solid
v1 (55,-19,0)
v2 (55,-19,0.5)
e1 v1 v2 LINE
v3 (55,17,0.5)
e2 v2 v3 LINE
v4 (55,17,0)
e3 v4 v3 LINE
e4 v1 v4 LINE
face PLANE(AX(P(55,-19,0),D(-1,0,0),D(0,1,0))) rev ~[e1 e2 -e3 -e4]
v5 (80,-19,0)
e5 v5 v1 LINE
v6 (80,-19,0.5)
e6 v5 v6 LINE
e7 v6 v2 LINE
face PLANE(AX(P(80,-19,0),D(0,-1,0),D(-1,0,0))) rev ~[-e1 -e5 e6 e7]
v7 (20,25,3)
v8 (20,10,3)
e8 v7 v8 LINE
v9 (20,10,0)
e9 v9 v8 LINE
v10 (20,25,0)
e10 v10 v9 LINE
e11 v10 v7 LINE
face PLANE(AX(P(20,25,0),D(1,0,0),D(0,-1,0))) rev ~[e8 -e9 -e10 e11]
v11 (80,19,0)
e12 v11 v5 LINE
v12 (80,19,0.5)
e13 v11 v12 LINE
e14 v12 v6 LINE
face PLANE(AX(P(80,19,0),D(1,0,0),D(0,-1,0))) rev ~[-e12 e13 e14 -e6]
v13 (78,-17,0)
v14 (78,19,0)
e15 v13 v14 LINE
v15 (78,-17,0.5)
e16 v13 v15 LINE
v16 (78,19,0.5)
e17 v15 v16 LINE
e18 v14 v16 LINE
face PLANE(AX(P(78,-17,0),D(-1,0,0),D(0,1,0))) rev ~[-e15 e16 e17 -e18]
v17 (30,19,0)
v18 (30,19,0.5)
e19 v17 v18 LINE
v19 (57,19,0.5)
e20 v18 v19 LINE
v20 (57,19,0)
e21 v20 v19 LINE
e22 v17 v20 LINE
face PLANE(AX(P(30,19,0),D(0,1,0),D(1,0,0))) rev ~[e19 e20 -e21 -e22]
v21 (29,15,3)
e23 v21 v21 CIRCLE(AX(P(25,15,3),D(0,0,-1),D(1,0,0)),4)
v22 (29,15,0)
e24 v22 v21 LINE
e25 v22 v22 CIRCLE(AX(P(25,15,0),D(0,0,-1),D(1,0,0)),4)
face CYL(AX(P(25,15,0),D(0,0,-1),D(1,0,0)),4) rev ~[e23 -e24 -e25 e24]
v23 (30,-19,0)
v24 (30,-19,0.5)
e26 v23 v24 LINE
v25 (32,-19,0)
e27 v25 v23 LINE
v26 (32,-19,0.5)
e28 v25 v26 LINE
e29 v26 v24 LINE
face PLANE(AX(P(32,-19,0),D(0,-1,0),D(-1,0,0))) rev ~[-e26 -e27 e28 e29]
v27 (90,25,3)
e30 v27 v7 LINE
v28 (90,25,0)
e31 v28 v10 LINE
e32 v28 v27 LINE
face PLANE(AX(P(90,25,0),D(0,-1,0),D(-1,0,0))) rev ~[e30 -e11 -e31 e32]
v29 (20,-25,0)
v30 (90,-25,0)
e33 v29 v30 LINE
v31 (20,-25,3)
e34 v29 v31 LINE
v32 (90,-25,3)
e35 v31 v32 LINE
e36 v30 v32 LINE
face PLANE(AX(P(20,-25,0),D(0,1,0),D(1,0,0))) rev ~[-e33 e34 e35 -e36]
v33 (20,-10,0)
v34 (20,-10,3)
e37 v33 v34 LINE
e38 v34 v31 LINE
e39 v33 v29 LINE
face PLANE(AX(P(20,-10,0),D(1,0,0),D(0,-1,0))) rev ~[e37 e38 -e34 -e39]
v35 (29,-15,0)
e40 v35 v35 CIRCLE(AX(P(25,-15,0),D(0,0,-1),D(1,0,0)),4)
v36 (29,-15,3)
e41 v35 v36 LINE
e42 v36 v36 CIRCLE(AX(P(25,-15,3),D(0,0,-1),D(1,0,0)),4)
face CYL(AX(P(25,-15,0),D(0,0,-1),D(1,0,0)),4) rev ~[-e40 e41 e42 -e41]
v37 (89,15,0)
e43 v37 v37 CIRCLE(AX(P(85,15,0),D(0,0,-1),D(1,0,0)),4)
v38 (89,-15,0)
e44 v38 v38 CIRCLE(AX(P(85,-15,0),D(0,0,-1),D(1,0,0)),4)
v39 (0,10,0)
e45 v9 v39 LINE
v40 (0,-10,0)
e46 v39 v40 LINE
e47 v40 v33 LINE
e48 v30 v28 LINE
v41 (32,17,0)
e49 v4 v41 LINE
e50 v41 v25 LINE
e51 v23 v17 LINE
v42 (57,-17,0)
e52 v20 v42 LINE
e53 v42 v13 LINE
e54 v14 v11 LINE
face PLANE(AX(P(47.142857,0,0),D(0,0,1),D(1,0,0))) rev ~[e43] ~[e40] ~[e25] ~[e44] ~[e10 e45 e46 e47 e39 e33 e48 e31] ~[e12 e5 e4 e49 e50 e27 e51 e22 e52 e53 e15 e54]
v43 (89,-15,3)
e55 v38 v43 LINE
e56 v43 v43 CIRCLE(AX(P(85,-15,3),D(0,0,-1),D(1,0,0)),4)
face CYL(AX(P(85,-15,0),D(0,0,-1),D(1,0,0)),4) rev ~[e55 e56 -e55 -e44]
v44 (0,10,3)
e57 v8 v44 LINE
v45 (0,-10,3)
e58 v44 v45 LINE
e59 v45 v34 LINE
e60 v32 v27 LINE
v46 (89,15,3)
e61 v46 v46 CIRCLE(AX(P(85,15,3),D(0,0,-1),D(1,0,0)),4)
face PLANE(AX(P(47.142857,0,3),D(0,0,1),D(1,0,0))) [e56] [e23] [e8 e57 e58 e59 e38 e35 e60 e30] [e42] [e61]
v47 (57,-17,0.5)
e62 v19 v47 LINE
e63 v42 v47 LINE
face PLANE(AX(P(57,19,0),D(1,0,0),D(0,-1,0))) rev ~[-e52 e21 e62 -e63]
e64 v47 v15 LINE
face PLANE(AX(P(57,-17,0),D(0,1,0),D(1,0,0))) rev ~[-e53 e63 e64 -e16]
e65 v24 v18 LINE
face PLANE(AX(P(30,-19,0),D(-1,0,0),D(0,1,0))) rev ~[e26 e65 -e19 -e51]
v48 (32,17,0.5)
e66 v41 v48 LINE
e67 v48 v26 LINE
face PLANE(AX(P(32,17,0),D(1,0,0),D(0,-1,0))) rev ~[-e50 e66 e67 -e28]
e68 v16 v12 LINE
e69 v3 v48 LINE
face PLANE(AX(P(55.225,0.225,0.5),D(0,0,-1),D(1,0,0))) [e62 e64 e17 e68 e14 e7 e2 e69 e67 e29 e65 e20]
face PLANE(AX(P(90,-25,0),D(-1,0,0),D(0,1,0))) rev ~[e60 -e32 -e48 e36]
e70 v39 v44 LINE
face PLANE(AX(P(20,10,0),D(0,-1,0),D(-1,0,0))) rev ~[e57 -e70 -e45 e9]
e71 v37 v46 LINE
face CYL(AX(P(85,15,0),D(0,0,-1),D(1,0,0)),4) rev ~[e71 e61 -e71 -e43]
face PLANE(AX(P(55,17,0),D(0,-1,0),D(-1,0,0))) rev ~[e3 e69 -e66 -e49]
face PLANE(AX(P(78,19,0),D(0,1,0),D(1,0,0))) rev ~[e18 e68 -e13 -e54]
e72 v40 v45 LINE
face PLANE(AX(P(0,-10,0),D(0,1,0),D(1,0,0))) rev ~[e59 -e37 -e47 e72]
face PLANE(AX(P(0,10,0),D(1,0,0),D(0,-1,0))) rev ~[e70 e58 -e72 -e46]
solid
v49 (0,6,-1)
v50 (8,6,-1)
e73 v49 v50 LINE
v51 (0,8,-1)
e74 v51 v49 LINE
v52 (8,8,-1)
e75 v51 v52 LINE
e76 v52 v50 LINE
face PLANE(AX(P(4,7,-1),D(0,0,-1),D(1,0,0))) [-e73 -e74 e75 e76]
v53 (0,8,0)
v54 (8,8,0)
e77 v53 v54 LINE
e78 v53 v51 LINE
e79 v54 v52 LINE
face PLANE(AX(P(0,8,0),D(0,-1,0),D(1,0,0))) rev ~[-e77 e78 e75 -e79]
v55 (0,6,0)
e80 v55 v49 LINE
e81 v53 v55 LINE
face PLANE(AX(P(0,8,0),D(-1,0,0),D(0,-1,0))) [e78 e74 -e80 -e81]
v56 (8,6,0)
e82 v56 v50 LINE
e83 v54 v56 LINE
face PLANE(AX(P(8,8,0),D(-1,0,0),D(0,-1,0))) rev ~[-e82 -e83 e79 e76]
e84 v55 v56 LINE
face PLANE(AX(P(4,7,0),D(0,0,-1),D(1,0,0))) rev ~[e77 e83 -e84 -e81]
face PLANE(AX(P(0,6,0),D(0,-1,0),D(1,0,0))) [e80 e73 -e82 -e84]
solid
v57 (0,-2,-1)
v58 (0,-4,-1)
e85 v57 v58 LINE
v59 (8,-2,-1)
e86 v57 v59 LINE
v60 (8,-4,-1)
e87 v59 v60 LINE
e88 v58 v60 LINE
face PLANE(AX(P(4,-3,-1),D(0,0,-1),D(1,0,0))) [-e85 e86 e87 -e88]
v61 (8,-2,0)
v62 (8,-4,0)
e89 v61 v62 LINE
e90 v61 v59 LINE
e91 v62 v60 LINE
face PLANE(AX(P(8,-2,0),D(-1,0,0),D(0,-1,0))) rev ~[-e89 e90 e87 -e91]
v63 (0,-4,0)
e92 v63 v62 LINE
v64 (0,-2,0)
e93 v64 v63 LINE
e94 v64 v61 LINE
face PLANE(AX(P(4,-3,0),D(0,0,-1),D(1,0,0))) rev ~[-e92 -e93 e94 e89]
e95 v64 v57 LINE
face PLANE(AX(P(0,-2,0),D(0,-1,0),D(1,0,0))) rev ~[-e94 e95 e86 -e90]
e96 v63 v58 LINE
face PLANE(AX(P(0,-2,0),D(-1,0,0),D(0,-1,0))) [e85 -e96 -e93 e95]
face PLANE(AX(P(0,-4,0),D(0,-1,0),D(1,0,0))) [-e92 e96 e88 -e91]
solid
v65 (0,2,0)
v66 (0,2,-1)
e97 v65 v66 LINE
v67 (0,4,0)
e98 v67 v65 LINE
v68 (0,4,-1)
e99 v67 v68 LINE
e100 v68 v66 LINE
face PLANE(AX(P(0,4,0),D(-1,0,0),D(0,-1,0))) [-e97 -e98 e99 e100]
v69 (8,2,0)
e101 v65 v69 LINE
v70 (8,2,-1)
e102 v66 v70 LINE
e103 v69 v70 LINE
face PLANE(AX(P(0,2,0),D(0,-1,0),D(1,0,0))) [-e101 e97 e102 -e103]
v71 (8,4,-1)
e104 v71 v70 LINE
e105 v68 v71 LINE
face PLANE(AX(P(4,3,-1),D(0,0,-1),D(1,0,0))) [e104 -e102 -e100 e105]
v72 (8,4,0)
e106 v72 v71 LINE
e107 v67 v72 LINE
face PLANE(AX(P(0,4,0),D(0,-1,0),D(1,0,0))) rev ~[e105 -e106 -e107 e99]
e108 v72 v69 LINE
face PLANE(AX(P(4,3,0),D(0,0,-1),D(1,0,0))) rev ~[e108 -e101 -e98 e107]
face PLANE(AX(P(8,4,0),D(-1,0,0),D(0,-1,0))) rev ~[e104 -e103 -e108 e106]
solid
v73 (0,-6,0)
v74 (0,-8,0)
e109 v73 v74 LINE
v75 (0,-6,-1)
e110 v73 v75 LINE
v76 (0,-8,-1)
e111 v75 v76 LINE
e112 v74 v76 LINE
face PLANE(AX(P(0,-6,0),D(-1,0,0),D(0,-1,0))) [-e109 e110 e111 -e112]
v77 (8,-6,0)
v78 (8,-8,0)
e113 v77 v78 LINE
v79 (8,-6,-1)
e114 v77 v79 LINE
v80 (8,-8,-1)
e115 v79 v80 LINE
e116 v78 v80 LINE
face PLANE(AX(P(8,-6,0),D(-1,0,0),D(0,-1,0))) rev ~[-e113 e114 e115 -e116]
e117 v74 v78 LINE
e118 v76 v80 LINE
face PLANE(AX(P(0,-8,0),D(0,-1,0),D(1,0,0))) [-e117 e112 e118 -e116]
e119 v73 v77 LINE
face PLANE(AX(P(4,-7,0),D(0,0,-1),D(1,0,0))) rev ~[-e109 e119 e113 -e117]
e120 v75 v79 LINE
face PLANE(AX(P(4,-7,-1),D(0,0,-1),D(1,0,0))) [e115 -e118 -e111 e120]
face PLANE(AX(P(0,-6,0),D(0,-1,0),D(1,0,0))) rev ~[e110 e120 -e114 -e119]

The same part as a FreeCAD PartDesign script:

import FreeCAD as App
import Part
import Sketcher
from FreeCAD import Vector

doc = App.newDocument("Part")
body = doc.addObject("PartDesign::Body", "Body")
body.AllowCompound = True

sketch1 = body.newObject("Sketcher::SketchObject", "Sketch")
sketch1.AttachmentSupport = (doc.getObject("XY_Plane"), [""])
sketch1.MapMode = "FlatFace"
sketch1.addGeometry([
    Part.LineSegment(Vector(0, -8, 0), Vector(0, -6, 0)),
    Part.LineSegment(Vector(0, -6, 0), Vector(8, -6, 0)),
    Part.LineSegment(Vector(8, -6, 0), Vector(8, -8, 0)),
    Part.LineSegment(Vector(8, -8, 0), Vector(0, -8, 0)),
    Part.LineSegment(Vector(0, -4, 0), Vector(0, -2, 0)),
    Part.LineSegment(Vector(0, -2, 0), Vector(8, -2, 0)),
    Part.LineSegment(Vector(8, -2, 0), Vector(8, -4, 0)),
    Part.LineSegment(Vector(8, -4, 0), Vector(0, -4, 0)),
    Part.LineSegment(Vector(0, 2, 0), Vector(0, 4, 0)),
    Part.LineSegment(Vector(0, 4, 0), Vector(8, 4, 0)),
    Part.LineSegment(Vector(8, 4, 0), Vector(8, 2, 0)),
    Part.LineSegment(Vector(8, 2, 0), Vector(0, 2, 0)),
    Part.LineSegment(Vector(0, 6, 0), Vector(0, 8, 0)),
    Part.LineSegment(Vector(0, 8, 0), Vector(8, 8, 0)),
    Part.LineSegment(Vector(8, 8, 0), Vector(8, 6, 0)),
    Part.LineSegment(Vector(8, 6, 0), Vector(0, 6, 0)),
], False)
sketch1.addConstraint([
    Sketcher.Constraint("Coincident", 0, 2, 1, 1),
    Sketcher.Constraint("Coincident", 1, 2, 2, 1),
    Sketcher.Constraint("Coincident", 2, 2, 3, 1),
    Sketcher.Constraint("Coincident", 3, 2, 0, 1),
    Sketcher.Constraint("Coincident", 4, 2, 5, 1),
    Sketcher.Constraint("Coincident", 5, 2, 6, 1),
    Sketcher.Constraint("Coincident", 6, 2, 7, 1),
    Sketcher.Constraint("Coincident", 7, 2, 4, 1),
    Sketcher.Constraint("Coincident", 8, 2, 9, 1),
    Sketcher.Constraint("Coincident", 9, 2, 10, 1),
    Sketcher.Constraint("Coincident", 10, 2, 11, 1),
    Sketcher.Constraint("Coincident", 11, 2, 8, 1),
    Sketcher.Constraint("Coincident", 12, 2, 13, 1),
    Sketcher.Constraint("Coincident", 13, 2, 14, 1),
    Sketcher.Constraint("Coincident", 14, 2, 15, 1),
    Sketcher.Constraint("Coincident", 15, 2, 12, 1),
    Sketcher.Constraint("Vertical", 0),
    Sketcher.Constraint("Horizontal", 1),
    Sketcher.Constraint("Vertical", 2),
    Sketcher.Constraint("Horizontal", 3),
    Sketcher.Constraint("Vertical", 4),
    Sketcher.Constraint("Horizontal", 5),
    Sketcher.Constraint("Vertical", 6),
    Sketcher.Constraint("Horizontal", 7),
    Sketcher.Constraint("Vertical", 8),
    Sketcher.Constraint("Horizontal", 9),
    Sketcher.Constraint("Vertical", 10),
    Sketcher.Constraint("Horizontal", 11),
    Sketcher.Constraint("Vertical", 12),
    Sketcher.Constraint("Horizontal", 13),
    Sketcher.Constraint("Vertical", 14),
    Sketcher.Constraint("Horizontal", 15),
    Sketcher.Constraint("Symmetric", 7, 2, 8, 2, -1, 1),
    Sketcher.Constraint("Symmetric", 3, 2, 12, 2, -1, 1),
    Sketcher.Constraint("Symmetric", 5, 2, 10, 2, -1),
    Sketcher.Constraint("Symmetric", 1, 2, 14, 2, -1),
    Sketcher.Constraint("PointOnObject", 0, 2, -2),
    Sketcher.Constraint("PointOnObject", 4, 2, -2),
    Sketcher.Constraint("Vertical", 2, 2, 5, 2),
    Sketcher.Constraint("Equal", 2, 4),
    Sketcher.Constraint("DistanceX", 1, 1, 1, 2, 8.0),
    Sketcher.Constraint("DistanceY", 0, 1, 0, 2, 2.0),
    Sketcher.Constraint("DistanceY", 0, 2, -1, 1, 6.0),
    Sketcher.Constraint("DistanceY", 4, 2, -1, 1, 2.0),
])
pad1 = body.newObject("PartDesign::Pad", "Pad")
pad1.Profile = sketch1
pad1.Length = 1
pad1.Reversed = True
body2 = doc.addObject("PartDesign::Body", "Body001")

sketch2 = body2.newObject("Sketcher::SketchObject", "Sketch001")
sketch2.AttachmentSupport = (doc.getObject("XY_Plane001"), [""])
sketch2.MapMode = "FlatFace"
sketch2.addGeometry([
    Part.LineSegment(Vector(0, 10, 0), Vector(0, -10, 0)),
    Part.LineSegment(Vector(0, -10, 0), Vector(20, -10, 0)),
    Part.LineSegment(Vector(20, -10, 0), Vector(20, -25, 0)),
    Part.LineSegment(Vector(20, -25, 0), Vector(90, -25, 0)),
    Part.LineSegment(Vector(90, -25, 0), Vector(90, 25, 0)),
    Part.LineSegment(Vector(90, 25, 0), Vector(20, 25, 0)),
    Part.LineSegment(Vector(20, 25, 0), Vector(20, 10, 0)),
    Part.LineSegment(Vector(20, 10, 0), Vector(0, 10, 0)),
], False)
sketch2.addConstraint([
    Sketcher.Constraint("Coincident", 0, 2, 1, 1),
    Sketcher.Constraint("Coincident", 1, 2, 2, 1),
    Sketcher.Constraint("Coincident", 2, 2, 3, 1),
    Sketcher.Constraint("Coincident", 3, 2, 4, 1),
    Sketcher.Constraint("Coincident", 4, 2, 5, 1),
    Sketcher.Constraint("Coincident", 5, 2, 6, 1),
    Sketcher.Constraint("Coincident", 6, 2, 7, 1),
    Sketcher.Constraint("Coincident", 7, 2, 0, 1),
    Sketcher.Constraint("Vertical", 0),
    Sketcher.Constraint("Horizontal", 1),
    Sketcher.Constraint("Vertical", 2),
    Sketcher.Constraint("Horizontal", 3),
    Sketcher.Constraint("Vertical", 4),
    Sketcher.Constraint("Horizontal", 5),
    Sketcher.Constraint("Vertical", 6),
    Sketcher.Constraint("Horizontal", 7),
    Sketcher.Constraint("Symmetric", 0, 2, 7, 2, -1, 1),
    Sketcher.Constraint("Symmetric", 2, 2, 5, 2, -1),
    Sketcher.Constraint("Equal", 7, 0),
    Sketcher.Constraint("DistanceX", 1, 1, 1, 2, 20.0),
    Sketcher.Constraint("DistanceX", 3, 1, 3, 2, 70.0),
    Sketcher.Constraint("DistanceY", 2, 2, 2, 1, 15.0),
])
pad2 = body2.newObject("PartDesign::Pad", "Pad001")
pad2.Profile = sketch2
pad2.Length = 3

sketch3 = body2.newObject("Sketcher::SketchObject", "Sketch002")
sketch3.AttachmentSupport = (doc.getObject("XY_Plane001"), [""])
sketch3.MapMode = "FlatFace"
sketch3.addGeometry([
    Part.Circle(Vector(25, -15, 0), Vector(0, 0, 1), 4),
    Part.Circle(Vector(25, 15, 0), Vector(0, 0, 1), 4),
    Part.Circle(Vector(85, 15, 0), Vector(0, 0, 1), 4),
    Part.Circle(Vector(85, -15, 0), Vector(0, 0, 1), 4),
], False)
sketch3.addConstraint([
    Sketcher.Constraint("Equal", 0, 1),
    Sketcher.Constraint("Equal", 1, 2),
    Sketcher.Constraint("Equal", 2, 3),
    Sketcher.Constraint("Symmetric", 0, 3, 1, 3, -1),
    Sketcher.Constraint("Symmetric", 2, 3, 3, 3, -1),
    Sketcher.Constraint("Horizontal", 1, 3, 2, 3),
    Sketcher.Constraint("Diameter", 0, 8.0),
    Sketcher.Constraint("DistanceX", -1, 1, 0, 3, 25.0),
    Sketcher.Constraint("DistanceY", 0, 3, -1, 1, 15.0),
    Sketcher.Constraint("DistanceX", -1, 1, 2, 3, 85.0),
])
pocket1 = body2.newObject("PartDesign::Pocket", "Pocket")
pocket1.Profile = sketch3
pocket1.Length = 3
pocket1.Reversed = True

sketch4 = body2.newObject("Sketcher::SketchObject", "Sketch003")
sketch4.AttachmentSupport = (doc.getObject("XY_Plane001"), [""])
sketch4.MapMode = "FlatFace"
sketch4.addGeometry([
    Part.LineSegment(Vector(30, -19, 0), Vector(30, 19, 0)),
    Part.LineSegment(Vector(30, 19, 0), Vector(57, 19, 0)),
    Part.LineSegment(Vector(57, 19, 0), Vector(57, -17, 0)),
    Part.LineSegment(Vector(57, -17, 0), Vector(78, -17, 0)),
    Part.LineSegment(Vector(78, -17, 0), Vector(78, 19, 0)),
    Part.LineSegment(Vector(78, 19, 0), Vector(80, 19, 0)),
    Part.LineSegment(Vector(80, 19, 0), Vector(80, -19, 0)),
    Part.LineSegment(Vector(80, -19, 0), Vector(55, -19, 0)),
    Part.LineSegment(Vector(55, -19, 0), Vector(55, 17, 0)),
    Part.LineSegment(Vector(55, 17, 0), Vector(32, 17, 0)),
    Part.LineSegment(Vector(32, 17, 0), Vector(32, -19, 0)),
    Part.LineSegment(Vector(32, -19, 0), Vector(30, -19, 0)),
], False)
sketch4.addConstraint([
    Sketcher.Constraint("Coincident", 0, 2, 1, 1),
    Sketcher.Constraint("Coincident", 1, 2, 2, 1),
    Sketcher.Constraint("Coincident", 2, 2, 3, 1),
    Sketcher.Constraint("Coincident", 3, 2, 4, 1),
    Sketcher.Constraint("Coincident", 4, 2, 5, 1),
    Sketcher.Constraint("Coincident", 5, 2, 6, 1),
    Sketcher.Constraint("Coincident", 6, 2, 7, 1),
    Sketcher.Constraint("Coincident", 7, 2, 8, 1),
    Sketcher.Constraint("Coincident", 8, 2, 9, 1),
    Sketcher.Constraint("Coincident", 9, 2, 10, 1),
    Sketcher.Constraint("Coincident", 10, 2, 11, 1),
    Sketcher.Constraint("Coincident", 11, 2, 0, 1),
    Sketcher.Constraint("Vertical", 0),
    Sketcher.Constraint("Horizontal", 1),
    Sketcher.Constraint("Vertical", 2),
    Sketcher.Constraint("Horizontal", 3),
    Sketcher.Constraint("Vertical", 4),
    Sketcher.Constraint("Horizontal", 5),
    Sketcher.Constraint("Vertical", 6),
    Sketcher.Constraint("Horizontal", 7),
    Sketcher.Constraint("Vertical", 8),
    Sketcher.Constraint("Horizontal", 9),
    Sketcher.Constraint("Vertical", 10),
    Sketcher.Constraint("Horizontal", 11),
    Sketcher.Constraint("Horizontal", 1, 2, 4, 2),
    Sketcher.Constraint("Horizontal", 7, 2, 10, 2),
    Sketcher.Constraint("Equal", 5, 11),
    Sketcher.Constraint("Equal", 4, 8),
    Sketcher.Constraint("DistanceX", 1, 1, 1, 2, 27.0),
    Sketcher.Constraint("DistanceX", 3, 1, 3, 2, 21.0),
    Sketcher.Constraint("DistanceX", 5, 1, 5, 2, 2.0),
    Sketcher.Constraint("DistanceX", 7, 2, 7, 1, 25.0),
    Sketcher.Constraint("DistanceY", 0, 1, 0, 2, 38.0),
    Sketcher.Constraint("DistanceY", 2, 2, 2, 1, 36.0),
    Sketcher.Constraint("DistanceX", -1, 1, 0, 2, 30.0),
    Sketcher.Constraint("DistanceY", -1, 1, 0, 2, 19.0),
])
pocket2 = body2.newObject("PartDesign::Pocket", "Pocket001")
pocket2.Profile = sketch4
pocket2.Length = 0.5
pocket2.Reversed = True

doc.recompute()
